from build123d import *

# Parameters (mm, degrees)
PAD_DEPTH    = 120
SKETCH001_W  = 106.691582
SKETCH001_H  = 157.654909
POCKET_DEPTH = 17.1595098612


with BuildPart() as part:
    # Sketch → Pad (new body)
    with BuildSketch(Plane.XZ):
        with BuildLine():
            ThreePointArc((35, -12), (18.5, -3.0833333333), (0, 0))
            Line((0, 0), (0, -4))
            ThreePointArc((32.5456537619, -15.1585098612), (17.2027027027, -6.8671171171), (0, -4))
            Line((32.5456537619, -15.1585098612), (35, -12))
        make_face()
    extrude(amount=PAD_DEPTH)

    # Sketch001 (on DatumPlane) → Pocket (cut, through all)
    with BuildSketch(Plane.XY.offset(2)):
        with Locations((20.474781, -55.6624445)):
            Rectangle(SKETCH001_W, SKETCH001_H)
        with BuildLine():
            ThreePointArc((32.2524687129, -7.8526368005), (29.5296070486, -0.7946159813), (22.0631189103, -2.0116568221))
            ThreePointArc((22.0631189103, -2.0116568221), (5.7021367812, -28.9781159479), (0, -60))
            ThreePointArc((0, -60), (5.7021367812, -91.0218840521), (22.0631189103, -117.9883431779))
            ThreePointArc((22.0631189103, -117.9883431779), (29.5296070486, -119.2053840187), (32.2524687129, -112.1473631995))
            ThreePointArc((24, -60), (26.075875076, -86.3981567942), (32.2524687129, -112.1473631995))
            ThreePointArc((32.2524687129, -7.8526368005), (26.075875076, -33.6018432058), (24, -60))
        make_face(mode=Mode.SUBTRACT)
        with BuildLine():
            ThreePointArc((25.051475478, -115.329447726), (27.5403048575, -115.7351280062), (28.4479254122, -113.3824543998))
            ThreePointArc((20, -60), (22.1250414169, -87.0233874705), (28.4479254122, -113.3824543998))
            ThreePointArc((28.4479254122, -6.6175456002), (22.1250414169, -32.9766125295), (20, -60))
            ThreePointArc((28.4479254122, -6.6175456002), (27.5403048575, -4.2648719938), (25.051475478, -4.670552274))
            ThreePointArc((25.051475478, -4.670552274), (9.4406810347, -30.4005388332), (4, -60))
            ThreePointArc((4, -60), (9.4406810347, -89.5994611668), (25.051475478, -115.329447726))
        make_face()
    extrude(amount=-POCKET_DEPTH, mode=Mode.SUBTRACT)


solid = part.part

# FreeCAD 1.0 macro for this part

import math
import FreeCAD as App
import Part
import Sketcher

doc = App.newDocument("Part")
params = doc.addObject("Spreadsheet::Sheet", "Params")
for row, (alias, value) in enumerate([
    ("sketch1_height", "4 mm"),
    ("pad1_length", "120 mm"),
    ("sketch2_radius", "6 mm"),
    ("sketch2_radius2", "2 mm"),
], start=1):
    params.set(f"A{row}", alias)
    params.set(f"B{row}", "=" + value)
    params.setAlias(f"B{row}", alias)

body = doc.addObject("PartDesign::Body", "Body")

sketch1 = doc.addObject("Sketcher::SketchObject", "Sketch")
body.addObject(sketch1)
sketch1.AttachmentSupport = (doc.XZ_Plane, [""])
sketch1.MapMode = "FlatFace"
sketch1.addGeometry(Part.ArcOfCircle(Part.Circle(App.Vector(0, -57.041667, 0), App.Vector(0, 0, 1), 57.041667), math.radians(52.150711), math.radians(90)), False)
sketch1.addGeometry(Part.LineSegment(App.Vector(0, 0, 0), App.Vector(0, -4, 0)), False)
sketch1.addGeometry(Part.ArcOfCircle(Part.Circle(App.Vector(0, -57.041667, 0), App.Vector(0, 0, 1), 53.041667), math.radians(52.150711), math.radians(90)), False)
sketch1.addGeometry(Part.LineSegment(App.Vector(32.545654, -15.15851, 0), App.Vector(35, -12, 0)), False)
sketch1.addConstraint(Sketcher.Constraint("Coincident", 0, 2, 1, 1))
sketch1.addConstraint(Sketcher.Constraint("Coincident", 1, 2, 2, 2))
sketch1.addConstraint(Sketcher.Constraint("Coincident", 2, 1, 3, 1))
sketch1.addConstraint(Sketcher.Constraint("Coincident", 3, 2, 0, 1))
sketch1.addConstraint(Sketcher.Constraint("Vertical", 1))
sketch1.addConstraint(Sketcher.Constraint("Coincident", 0, 2, -1, 1))
sketch1.addConstraint(Sketcher.Constraint("Coincident", 2, 3, 0, 3))
sketch1.addConstraint(Sketcher.Constraint("PointOnObject", 0, 3, -2))
sketch1.addConstraint(Sketcher.Constraint("DistanceY", 1, 2, 1, 1, 4.0))
sketch1.addConstraint(Sketcher.Constraint("DistanceX", -1, 1, 3, 2, 35.0))
sketch1.addConstraint(Sketcher.Constraint("DistanceY", 3, 2, -1, 1, 12.0))
sketch1.addConstraint(Sketcher.Constraint("DistanceY", 2, 1, -1, 1, 15.15851))
sketch1.setExpression("Constraints[8]", "Params.sketch1_height")
pad1 = doc.addObject("PartDesign::Pad", "Pad")
body.addObject(pad1)
pad1.Profile = sketch1
pad1.setExpression("Length", "Params.pad1_length")

sketch2 = doc.addObject("Sketcher::SketchObject", "Sketch001")
body.addObject(sketch2)
sketch2.AttachmentSupport = (doc.XY_Plane, [""])
sketch2.MapMode = "FlatFace"
sketch2.AttachmentOffset = App.Placement(App.Vector(0, 0, 2), App.Rotation())
sketch2.addGeometry(Part.LineSegment(App.Vector(-32.87101, 23.16501, 0), App.Vector(-32.87101, -134.489899, 0)), False)
sketch2.addGeometry(Part.LineSegment(App.Vector(-32.87101, -134.489899, 0), App.Vector(73.820572, -134.489899, 0)), False)
sketch2.addGeometry(Part.LineSegment(App.Vector(73.820572, -134.489899, 0), App.Vector(73.820572, 23.16501, 0)), False)
sketch2.addGeometry(Part.LineSegment(App.Vector(73.820572, 23.16501, 0), App.Vector(-32.87101, 23.16501, 0)), False)
sketch2.addGeometry(Part.ArcOfCircle(Part.Circle(App.Vector(26.545654, -6, 0), App.Vector(0, 0, 1), 6), math.radians(-17.985289), math.radians(138.338856)), False)
sketch2.addGeometry(Part.ArcOfCircle(Part.Circle(App.Vector(192.885871, -60, 0), App.Vector(0, 0, 1), 168.885871), math.radians(162.014711), math.radians(180)), False)
sketch2.addGeometry(Part.ArcOfCircle(Part.Circle(App.Vector(192.885871, -60, 0), App.Vector(0, 0, 1), 168.885871), math.radians(-180), math.radians(-162.014711)), False)
sketch2.addGeometry(Part.ArcOfCircle(Part.Circle(App.Vector(26.545654, -114, 0), App.Vector(0, 0, 1), 6), math.radians(-138.338856), math.radians(17.985289)), False)
sketch2.addGeometry(Part.ArcOfCircle(Part.Circle(App.Vector(87.236741, -60, 0), App.Vector(0, 0, 1), 87.236741), math.radians(180), math.radians(221.661144)), False)
sketch2.addGeometry(Part.ArcOfCircle(Part.Circle(App.Vector(87.236741, -60, 0), App.Vector(0, 0, 1), 87.236741), math.radians(138.338856), math.radians(180)), False)
sketch2.addGeometry(Part.ArcOfCircle(Part.Circle(App.Vector(26.545654, -114, 0), App.Vector(0, 0, 1), 2), math.radians(-138.338856), math.radians(17.985289)), False)
sketch2.addGeometry(Part.ArcOfCircle(Part.Circle(App.Vector(192.885871, -60, 0), App.Vector(0, 0, 1), 172.885871), math.radians(180), math.radians(197.985289)), False)
sketch2.addGeometry(Part.ArcOfCircle(Part.Circle(App.Vector(192.885871, -60, 0), App.Vector(0, 0, 1), 172.885871), math.radians(162.014711), math.radians(180)), False)
sketch2.addGeometry(Part.ArcOfCircle(Part.Circle(App.Vector(26.545654, -6, 0), App.Vector(0, 0, 1), 2), math.radians(-17.985289), math.radians(138.338856)), False)
sketch2.addGeometry(Part.ArcOfCircle(Part.Circle(App.Vector(87.236741, -60, 0), App.Vector(0, 0, 1), 83.236741), math.radians(138.338856), math.radians(180)), False)
sketch2.addGeometry(Part.ArcOfCircle(Part.Circle(App.Vector(87.236741, -60, 0), App.Vector(0, 0, 1), 83.236741), math.radians(180), math.radians(221.661144)), False)
sketch2.addConstraint(Sketcher.Constraint("Coincident", 0, 2, 1, 1))
sketch2.addConstraint(Sketcher.Constraint("Coincident", 1, 2, 2, 1))
sketch2.addConstraint(Sketcher.Constraint("Coincident", 2, 2, 3, 1))
sketch2.addConstraint(Sketcher.Constraint("Coincident", 3, 2, 0, 1))
sketch2.addConstraint(Sketcher.Constraint("Tangent", 4, 1, 5, 1))
sketch2.addConstraint(Sketcher.Constraint("Tangent", 5, 2, 6, 1))
sketch2.addConstraint(Sketcher.Constraint("Tangent", 6, 2, 7, 2))
sketch2.addConstraint(Sketcher.Constraint("Tangent", 7, 1, 8, 2))
sketch2.addConstraint(Sketcher.Constraint("Tangent", 8, 1, 9, 2))
sketch2.addConstraint(Sketcher.Constraint("Tangent", 9, 1, 4, 2))
sketch2.addConstraint(Sketcher.Constraint("Tangent", 10, 2, 11, 2))
sketch2.addConstraint(Sketcher.Constraint("Tangent", 11, 1, 12, 2))
sketch2.addConstraint(Sketcher.Constraint("Tangent", 12, 1, 13, 1))
sketch2.addConstraint(Sketcher.Constraint("Tangent", 13, 2, 14, 1))
sketch2.addConstraint(Sketcher.Constraint("Tangent", 14, 2, 15, 1))
sketch2.addConstraint(Sketcher.Constraint("Tangent", 15, 2, 10, 1))
sketch2.addConstraint(Sketcher.Constraint("Vertical", 0))
sketch2.addConstraint(Sketcher.Constraint("Horizontal", 1))
sketch2.addConstraint(Sketcher.Constraint("Vertical", 2))
sketch2.addConstraint(Sketcher.Constraint("Horizontal", 3))
sketch2.addConstraint(Sketcher.Constraint("Coincident", 10, 3, 7, 3))
sketch2.addConstraint(Sketcher.Constraint("Coincident", 11, 3, 5, 3))
sketch2.addConstraint(Sketcher.Constraint("Coincident", 13, 3, 4, 3))
sketch2.addConstraint(Sketcher.Constraint("Coincident", 14, 3, 8, 3))
sketch2.addConstraint(Sketcher.Constraint("Equal", 5, 6))
sketch2.addConstraint(Sketcher.Constraint("Equal", 4, 7))
sketch2.addConstraint(Sketcher.Constraint("Equal", 8, 9))
sketch2.addConstraint(Sketcher.Constraint("Equal", 11, 12))
sketch2.addConstraint(Sketcher.Constraint("PointOnObject", 8, 1, -2))
sketch2.addConstraint(Sketcher.Constraint("Horizontal", 6, 3, 8, 3))
sketch2.addConstraint(Sketcher.Constraint("Horizontal", 15, 3, 5, 2))
sketch2.addConstraint(Sketcher.Constraint("Horizontal", 5, 2, 8, 1))
sketch2.addConstraint(Sketcher.Constraint("Horizontal", 8, 1, 11, 1))
sketch2.addConstraint(Sketcher.Constraint("Horizontal", 11, 1, 14, 2))
sketch2.addConstraint(Sketcher.Constraint("Radius", 4, 6.0))
sketch2.addConstraint(Sketcher.Constraint("Radius", 10, 2.0))
sketch2.addConstraint(Sketcher.Constraint("DistanceY", 4, 3, -1, 1, 6.0))
sketch2.addConstraint(Sketcher.Constraint("DistanceY", 5, 3, -1, 1, 60.0))
sketch2.addConstraint(Sketcher.Constraint("DistanceX", -1, 1, 5, 2, 24.0))
sketch2.addConstraint(Sketcher.Constraint("Radius", 5, 168.885871))
sketch2.addConstraint(Sketcher.Constraint("DistanceX", 1, 1, 1, 2, 106.691582))
sketch2.addConstraint(Sketcher.Constraint("DistanceY", 0, 2, 0, 1, 157.654909))
sketch2.addConstraint(Sketcher.Constraint("DistanceY", 0, 2, -1, 1, 134.489899))
sketch2.addConstraint(Sketcher.Constraint("DistanceX", 0, 2, -1, 1, 32.87101))
sketch2.setExpression("Constraints[34]", "Params.sketch2_radius")
sketch2.setExpression("Constraints[35]", "Params.sketch2_radius2")
pocket1 = doc.addObject("PartDesign::Pocket", "Pocket")
body.addObject(pocket1)
pocket1.Profile = sketch2
pocket1.Type = "ThroughAll"

doc.recompute()
